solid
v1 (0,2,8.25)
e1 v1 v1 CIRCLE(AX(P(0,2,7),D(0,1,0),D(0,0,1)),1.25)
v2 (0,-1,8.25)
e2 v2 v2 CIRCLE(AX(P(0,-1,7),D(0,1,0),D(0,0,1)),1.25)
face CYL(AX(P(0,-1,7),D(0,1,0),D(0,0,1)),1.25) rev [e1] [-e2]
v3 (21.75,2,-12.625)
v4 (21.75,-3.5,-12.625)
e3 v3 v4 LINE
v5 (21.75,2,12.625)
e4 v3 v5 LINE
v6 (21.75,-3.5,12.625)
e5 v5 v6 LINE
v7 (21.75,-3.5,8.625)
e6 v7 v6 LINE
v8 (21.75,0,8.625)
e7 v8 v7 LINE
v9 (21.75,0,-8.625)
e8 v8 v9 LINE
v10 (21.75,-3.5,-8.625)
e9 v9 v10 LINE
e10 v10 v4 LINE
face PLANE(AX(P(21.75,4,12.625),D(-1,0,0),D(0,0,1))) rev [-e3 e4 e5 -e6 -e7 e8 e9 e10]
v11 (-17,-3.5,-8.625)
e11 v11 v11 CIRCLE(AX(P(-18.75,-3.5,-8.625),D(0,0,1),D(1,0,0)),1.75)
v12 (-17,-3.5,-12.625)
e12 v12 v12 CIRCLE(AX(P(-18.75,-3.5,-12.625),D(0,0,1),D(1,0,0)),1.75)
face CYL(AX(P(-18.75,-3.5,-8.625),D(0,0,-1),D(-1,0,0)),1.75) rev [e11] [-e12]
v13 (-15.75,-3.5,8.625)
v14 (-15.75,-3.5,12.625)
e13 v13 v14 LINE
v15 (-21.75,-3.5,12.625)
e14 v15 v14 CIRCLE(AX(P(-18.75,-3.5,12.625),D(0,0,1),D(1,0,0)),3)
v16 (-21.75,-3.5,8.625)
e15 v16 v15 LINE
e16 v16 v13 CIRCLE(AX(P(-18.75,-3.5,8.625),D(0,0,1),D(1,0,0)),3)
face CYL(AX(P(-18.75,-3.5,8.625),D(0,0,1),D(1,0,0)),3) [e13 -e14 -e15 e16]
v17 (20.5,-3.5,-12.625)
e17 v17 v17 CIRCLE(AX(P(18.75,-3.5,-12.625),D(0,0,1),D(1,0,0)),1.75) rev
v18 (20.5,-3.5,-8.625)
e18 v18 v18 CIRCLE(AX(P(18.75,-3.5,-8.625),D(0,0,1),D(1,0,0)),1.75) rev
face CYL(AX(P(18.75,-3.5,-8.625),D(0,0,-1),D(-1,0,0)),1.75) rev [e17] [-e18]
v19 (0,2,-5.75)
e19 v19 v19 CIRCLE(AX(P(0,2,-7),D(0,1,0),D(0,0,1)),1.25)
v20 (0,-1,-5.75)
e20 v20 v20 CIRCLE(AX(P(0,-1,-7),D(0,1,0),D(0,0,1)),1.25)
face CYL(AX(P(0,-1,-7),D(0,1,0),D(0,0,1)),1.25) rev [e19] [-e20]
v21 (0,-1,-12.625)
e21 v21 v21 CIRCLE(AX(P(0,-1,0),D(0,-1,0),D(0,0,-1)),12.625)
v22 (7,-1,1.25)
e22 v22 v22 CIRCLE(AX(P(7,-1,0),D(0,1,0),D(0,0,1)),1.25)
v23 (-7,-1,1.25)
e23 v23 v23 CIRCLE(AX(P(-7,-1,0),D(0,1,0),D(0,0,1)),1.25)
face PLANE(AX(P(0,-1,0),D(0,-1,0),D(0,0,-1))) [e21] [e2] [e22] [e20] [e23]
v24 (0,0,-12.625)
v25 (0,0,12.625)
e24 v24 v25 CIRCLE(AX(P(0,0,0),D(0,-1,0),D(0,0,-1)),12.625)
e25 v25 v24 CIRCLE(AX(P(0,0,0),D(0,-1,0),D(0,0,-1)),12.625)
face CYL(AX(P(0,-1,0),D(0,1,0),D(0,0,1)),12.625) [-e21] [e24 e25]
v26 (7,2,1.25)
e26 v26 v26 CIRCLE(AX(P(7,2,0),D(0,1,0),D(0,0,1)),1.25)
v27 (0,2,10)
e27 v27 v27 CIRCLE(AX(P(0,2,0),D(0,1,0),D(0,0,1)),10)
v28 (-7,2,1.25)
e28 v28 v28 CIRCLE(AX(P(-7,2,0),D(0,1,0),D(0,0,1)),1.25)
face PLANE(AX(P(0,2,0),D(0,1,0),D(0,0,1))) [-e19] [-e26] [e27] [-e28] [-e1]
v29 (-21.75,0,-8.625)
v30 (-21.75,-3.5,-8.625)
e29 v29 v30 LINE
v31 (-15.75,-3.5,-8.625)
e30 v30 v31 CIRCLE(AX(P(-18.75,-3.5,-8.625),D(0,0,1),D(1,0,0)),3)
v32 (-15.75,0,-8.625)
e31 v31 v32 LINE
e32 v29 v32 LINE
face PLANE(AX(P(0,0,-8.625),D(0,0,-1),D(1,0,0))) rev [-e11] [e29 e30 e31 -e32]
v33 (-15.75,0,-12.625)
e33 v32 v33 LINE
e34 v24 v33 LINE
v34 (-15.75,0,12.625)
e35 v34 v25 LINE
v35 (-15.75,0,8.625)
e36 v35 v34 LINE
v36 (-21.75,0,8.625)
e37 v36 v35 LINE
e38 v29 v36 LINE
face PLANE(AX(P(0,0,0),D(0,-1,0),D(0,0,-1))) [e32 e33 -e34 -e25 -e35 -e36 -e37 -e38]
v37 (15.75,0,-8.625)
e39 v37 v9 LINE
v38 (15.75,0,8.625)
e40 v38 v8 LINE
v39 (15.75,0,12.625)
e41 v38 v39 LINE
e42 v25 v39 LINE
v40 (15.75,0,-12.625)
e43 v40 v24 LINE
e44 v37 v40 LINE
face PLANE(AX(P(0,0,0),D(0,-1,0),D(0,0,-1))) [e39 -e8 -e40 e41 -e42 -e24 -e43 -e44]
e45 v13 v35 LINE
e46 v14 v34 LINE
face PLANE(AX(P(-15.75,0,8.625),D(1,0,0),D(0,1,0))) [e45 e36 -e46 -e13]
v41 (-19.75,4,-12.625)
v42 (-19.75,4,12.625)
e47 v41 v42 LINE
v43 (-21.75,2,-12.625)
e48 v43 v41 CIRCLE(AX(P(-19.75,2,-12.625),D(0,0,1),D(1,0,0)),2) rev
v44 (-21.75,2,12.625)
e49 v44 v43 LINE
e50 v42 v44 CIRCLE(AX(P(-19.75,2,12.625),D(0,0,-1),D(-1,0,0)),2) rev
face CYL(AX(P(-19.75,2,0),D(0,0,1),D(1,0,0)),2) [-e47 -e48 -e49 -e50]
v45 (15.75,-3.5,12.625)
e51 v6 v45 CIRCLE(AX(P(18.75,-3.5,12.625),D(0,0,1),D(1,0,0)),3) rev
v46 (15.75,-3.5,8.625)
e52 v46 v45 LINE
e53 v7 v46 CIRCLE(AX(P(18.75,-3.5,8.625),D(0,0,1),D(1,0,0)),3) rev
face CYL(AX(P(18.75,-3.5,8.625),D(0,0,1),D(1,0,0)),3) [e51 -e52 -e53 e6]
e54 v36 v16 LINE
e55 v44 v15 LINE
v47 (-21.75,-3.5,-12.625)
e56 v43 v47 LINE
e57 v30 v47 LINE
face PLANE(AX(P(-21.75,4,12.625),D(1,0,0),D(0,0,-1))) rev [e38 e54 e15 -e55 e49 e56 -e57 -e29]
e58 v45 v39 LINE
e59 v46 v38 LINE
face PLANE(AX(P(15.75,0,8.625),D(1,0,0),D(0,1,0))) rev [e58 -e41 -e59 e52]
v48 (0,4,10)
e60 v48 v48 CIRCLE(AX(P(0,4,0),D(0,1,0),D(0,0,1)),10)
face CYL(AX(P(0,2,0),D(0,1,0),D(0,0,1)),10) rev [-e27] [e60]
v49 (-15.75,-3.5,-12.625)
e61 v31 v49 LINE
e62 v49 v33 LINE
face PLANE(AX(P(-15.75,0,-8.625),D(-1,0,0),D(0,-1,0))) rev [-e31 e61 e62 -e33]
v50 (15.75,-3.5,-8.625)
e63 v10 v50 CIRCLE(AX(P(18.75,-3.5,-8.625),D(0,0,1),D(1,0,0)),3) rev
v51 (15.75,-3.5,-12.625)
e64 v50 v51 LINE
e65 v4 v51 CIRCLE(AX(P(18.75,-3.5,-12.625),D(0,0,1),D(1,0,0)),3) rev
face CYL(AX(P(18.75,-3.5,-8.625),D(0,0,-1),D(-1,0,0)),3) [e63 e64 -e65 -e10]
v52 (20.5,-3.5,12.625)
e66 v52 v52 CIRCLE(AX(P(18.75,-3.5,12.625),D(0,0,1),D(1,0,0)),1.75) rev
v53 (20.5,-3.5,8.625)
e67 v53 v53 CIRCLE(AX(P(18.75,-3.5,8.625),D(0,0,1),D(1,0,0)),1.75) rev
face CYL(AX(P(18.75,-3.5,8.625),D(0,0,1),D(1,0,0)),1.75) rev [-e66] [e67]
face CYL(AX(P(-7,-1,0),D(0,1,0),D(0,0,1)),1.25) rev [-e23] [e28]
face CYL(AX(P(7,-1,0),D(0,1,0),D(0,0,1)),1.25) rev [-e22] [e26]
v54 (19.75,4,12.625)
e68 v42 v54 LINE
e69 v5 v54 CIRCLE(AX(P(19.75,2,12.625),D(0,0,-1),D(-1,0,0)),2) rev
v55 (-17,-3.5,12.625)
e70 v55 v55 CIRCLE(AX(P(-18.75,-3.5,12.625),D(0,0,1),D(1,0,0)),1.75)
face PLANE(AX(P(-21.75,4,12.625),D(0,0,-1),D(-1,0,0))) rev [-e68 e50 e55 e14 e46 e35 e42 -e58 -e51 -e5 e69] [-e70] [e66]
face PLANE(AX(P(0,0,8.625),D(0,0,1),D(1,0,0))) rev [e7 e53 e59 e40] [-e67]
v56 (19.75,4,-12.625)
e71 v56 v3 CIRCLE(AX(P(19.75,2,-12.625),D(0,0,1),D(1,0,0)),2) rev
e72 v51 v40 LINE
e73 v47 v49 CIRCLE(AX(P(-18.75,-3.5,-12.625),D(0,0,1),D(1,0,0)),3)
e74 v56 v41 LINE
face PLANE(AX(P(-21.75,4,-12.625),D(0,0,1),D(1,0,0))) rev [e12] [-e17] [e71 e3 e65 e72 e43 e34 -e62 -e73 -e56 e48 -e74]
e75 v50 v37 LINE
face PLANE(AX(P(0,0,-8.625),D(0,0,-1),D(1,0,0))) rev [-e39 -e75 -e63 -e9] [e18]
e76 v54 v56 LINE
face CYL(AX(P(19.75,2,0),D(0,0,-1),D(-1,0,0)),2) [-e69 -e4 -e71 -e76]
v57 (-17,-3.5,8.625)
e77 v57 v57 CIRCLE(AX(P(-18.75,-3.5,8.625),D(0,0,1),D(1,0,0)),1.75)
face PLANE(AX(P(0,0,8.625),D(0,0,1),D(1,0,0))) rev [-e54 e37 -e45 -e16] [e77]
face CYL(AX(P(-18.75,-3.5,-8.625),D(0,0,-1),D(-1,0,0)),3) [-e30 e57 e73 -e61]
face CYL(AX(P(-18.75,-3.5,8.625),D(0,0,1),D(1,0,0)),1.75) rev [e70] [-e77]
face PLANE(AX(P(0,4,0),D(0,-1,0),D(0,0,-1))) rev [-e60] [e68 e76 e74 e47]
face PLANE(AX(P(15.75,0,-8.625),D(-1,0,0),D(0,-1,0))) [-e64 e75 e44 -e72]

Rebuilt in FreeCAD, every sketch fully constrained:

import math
import FreeCAD as App
import Part
import Sketcher

V = App.Vector
Q = App.Units.Quantity


def edges_at(feature, points):
    """Names of the edges that pass closest to the given points."""
    edges = feature.Shape.Edges
    near = lambda p: min(range(len(edges)), key=lambda i: edges[i].distToShape(Part.Vertex(*p))[0])
    return sorted({f"Edge{near(p) + 1}" for p in points})

doc = App.newDocument("Part")
params = doc.addObject("Spreadsheet::Sheet", "Params")
for row, (alias, value) in enumerate([
    ("sketch1_width", "43.5 mm"),
    ("sketch1_height", "25.25 mm"),
    ("pad1_length", "4 mm"),
    ("sketch2_diameter", "20 mm"),
    ("pocket1_length", "2 mm"),
    ("sketch3_diameter", "25.25 mm"),
    ("pad2_length", "1 mm"),
    ("sketch4_diameter", "2.5 mm"),
    ("sketch5_radius", "3 mm"),
    ("sketch5_diameter", "3.5 mm"),
    ("sketch5_height", "3.5 mm"),
    ("pad3_length", "4 mm"),
    ("fillet_radius", "2 mm"),
], start=1):
    params.set(f"A{row}", alias)
    params.set(f"B{row}", "=" + value)
    params.setAlias(f"B{row}", alias)

body = doc.addObject("PartDesign::Body", "Body")

sketch1 = body.newObject("Sketcher::SketchObject", "Sketch")
sketch1.AttachmentSupport = (doc.getObject("XZ_Plane"), [""])
sketch1.MapMode = "FlatFace"
sketch1.addGeometry(Part.LineSegment(V(-22, -13, 0), V(-22, 13, 0)), False)
sketch1.addGeometry(Part.LineSegment(V(-22, 13, 0), V(22, 13, 0)), False)
sketch1.addGeometry(Part.LineSegment(V(22, 13, 0), V(22, -13, 0)), False)
sketch1.addGeometry(Part.LineSegment(V(22, -13, 0), V(-22, -13, 0)), False)
sketch1.addConstraint(Sketcher.Constraint("Coincident", 0, 2, 1, 1))
sketch1.addConstraint(Sketcher.Constraint("Coincident", 1, 2, 2, 1))
sketch1.addConstraint(Sketcher.Constraint("Coincident", 2, 2, 3, 1))
sketch1.addConstraint(Sketcher.Constraint("Coincident", 3, 2, 0, 1))
sketch1.addConstraint(Sketcher.Constraint("Vertical", 0))
sketch1.addConstraint(Sketcher.Constraint("Horizontal", 1))
sketch1.addConstraint(Sketcher.Constraint("Vertical", 2))
sketch1.addConstraint(Sketcher.Constraint("Horizontal", 3))
sketch1.addConstraint(Sketcher.Constraint("Symmetric", 0, 2, 2, 2, -1, 1))
sketch1.addConstraint(Sketcher.Constraint("DistanceX", 1, 1, 1, 2, Q("43.5 mm")))
sketch1.addConstraint(Sketcher.Constraint("DistanceY", 0, 1, 0, 2, Q("25.25 mm")))
sketch1.setExpression("Constraints[9]", "Params.sketch1_width")
sketch1.setExpression("Constraints[10]", "Params.sketch1_height")
pad1 = body.newObject("PartDesign::Pad", "Pad")
pad1.Profile = sketch1
pad1.setExpression("Length", "Params.pad1_length")
pad1.Reversed = True

sketch2 = body.newObject("Sketcher::SketchObject", "Sketch001")
sketch2.AttachmentSupport = (doc.getObject("XZ_Plane"), [""])
sketch2.MapMode = "FlatFace"
sketch2.AttachmentOffset = App.Placement(V(0, 0, -4), App.Rotation())
sketch2.addGeometry(Part.Circle(V(0, 0, 0), V(0, 0, 1), 10), False)
sketch2.addConstraint(Sketcher.Constraint("Coincident", 0, 3, -1, 1))
sketch2.addConstraint(Sketcher.Constraint("Diameter", 0, Q("20 mm")))
sketch2.setExpression("Constraints[1]", "Params.sketch2_diameter")
pocket1 = body.newObject("PartDesign::Pocket", "Pocket")
pocket1.Profile = sketch2
pocket1.setExpression("Length", "Params.pocket1_length")
pocket1.Reversed = True

sketch3 = body.newObject("Sketcher::SketchObject", "Sketch002")
sketch3.AttachmentSupport = (doc.getObject("XZ_Plane"), [""])
sketch3.MapMode = "FlatFace"
sketch3.addGeometry(Part.Circle(V(0, 0, 0), V(0, 0, 1), 13), False)
sketch3.addConstraint(Sketcher.Constraint("Coincident", 0, 3, -1, 1))
sketch3.addConstraint(Sketcher.Constraint("Diameter", 0, Q("25.25 mm")))
sketch3.setExpression("Constraints[1]", "Params.sketch3_diameter")
pad2 = body.newObject("PartDesign::Pad", "Pad001")
pad2.Profile = sketch3
pad2.setExpression("Length", "Params.pad2_length")

sketch4 = body.newObject("Sketcher::SketchObject", "Sketch003")
sketch4.AttachmentSupport = (doc.getObject("XZ_Plane"), [""])
sketch4.MapMode = "FlatFace"
sketch4.AttachmentOffset = App.Placement(V(0, 0, -4), App.Rotation())
sketch4.addGeometry(Part.Circle(V(0, -7, 0), V(0, 0, 1), 1.2), False)
sketch4.addGeometry(Part.Circle(V(7, 0, 0), V(0, 0, 1), 1.2), False)
sketch4.addGeometry(Part.Circle(V(0, 7, 0), V(0, 0, 1), 1.2), False)
sketch4.addGeometry(Part.Circle(V(-7, 0, 0), V(0, 0, 1), 1.2), False)
sketch4.addConstraint(Sketcher.Constraint("Equal", 0, 1))
sketch4.addConstraint(Sketcher.Constraint("Equal", 1, 2))
sketch4.addConstraint(Sketcher.Constraint("Equal", 2, 3))
sketch4.addConstraint(Sketcher.Constraint("Symmetric", 0, 3, 2, 3, -1, 1))
sketch4.addConstraint(Sketcher.Constraint("Symmetric", 1, 3, 3, 3, -1, 1))
sketch4.addConstraint(Sketcher.Constraint("PointOnObject", 0, 3, -2))
sketch4.addConstraint(Sketcher.Constraint("PointOnObject", 1, 3, -1))
sketch4.addConstraint(Sketcher.Constraint("Diameter", 0, Q("2.5 mm")))
sketch4.addConstraint(Sketcher.Constraint("DistanceY", 0, 3, -1, 1, Q("7 mm")))
sketch4.addConstraint(Sketcher.Constraint("DistanceX", -1, 1, 1, 3, Q("7 mm")))
sketch4.setExpression("Constraints[7]", "Params.sketch4_diameter")
pocket2 = body.newObject("PartDesign::Pocket", "Pocket001")
pocket2.Profile = sketch4
pocket2.Type = "ThroughAll"
pocket2.Reversed = True

sketch5 = body.newObject("Sketcher::SketchObject", "Sketch004")
sketch5.AttachmentSupport = (doc.getObject("XY_Plane"), [""])
sketch5.MapMode = "FlatFace"
sketch5.AttachmentOffset = App.Placement(V(0, 0, 12.625), App.Rotation())
sketch5.addGeometry(Part.LineSegment(V(-15.8, 0, 0), V(-21.8, 0, 0)), False)
sketch5.addGeometry(Part.LineSegment(V(-21.8, 0, 0), V(-21.8, -3.5, 0)), False)
sketch5.addGeometry(Part.ArcOfCircle(Part.Circle(V(-18.8, -3.5, 0), V(0, 0, 1), 3), math.radians(180), math.radians(360)), False)
sketch5.addGeometry(Part.LineSegment(V(-15.8, -3.5, 0), V(-15.8, 0, 0)), False)
sketch5.addGeometry(Part.Circle(V(-18.8, -3.5, 0), V(0, 0, 1), 1.8), False)
sketch5.addGeometry(Part.LineSegment(V(21.8, -3.5, 0), V(21.8, 0, 0)), False)
sketch5.addGeometry(Part.LineSegment(V(21.8, 0, 0), V(15.8, 0, 0)), False)
sketch5.addGeometry(Part.LineSegment(V(15.8, 0, 0), V(15.8, -3.5, 0)), False)
sketch5.addGeometry(Part.ArcOfCircle(Part.Circle(V(18.8, -3.5, 0), V(0, 0, 1), 3), math.radians(180), math.radians(360)), False)
sketch5.addGeometry(Part.Circle(V(18.8, -3.5, 0), V(0, 0, 1), 1.8), False)
sketch5.addConstraint(Sketcher.Constraint("Coincident", 0, 2, 1, 1))
sketch5.addConstraint(Sketcher.Constraint("Tangent", 1, 2, 2, 1))
sketch5.addConstraint(Sketcher.Constraint("Tangent", 2, 2, 3, 1))
sketch5.addConstraint(Sketcher.Constraint("Coincident", 3, 2, 0, 1))
sketch5.addConstraint(Sketcher.Constraint("Coincident", 5, 2, 6, 1))
sketch5.addConstraint(Sketcher.Constraint("Coincident", 6, 2, 7, 1))
sketch5.addConstraint(Sketcher.Constraint("Tangent", 7, 2, 8, 1))
sketch5.addConstraint(Sketcher.Constraint("Tangent", 8, 2, 5, 1))
sketch5.addConstraint(Sketcher.Constraint("Horizontal", 0))
sketch5.addConstraint(Sketcher.Constraint("Vertical", 1))
sketch5.addConstraint(Sketcher.Constraint("Vertical", 3))
sketch5.addConstraint(Sketcher.Constraint("Vertical", 5))
sketch5.addConstraint(Sketcher.Constraint("Horizontal", 6))
sketch5.addConstraint(Sketcher.Constraint("Vertical", 7))
sketch5.addConstraint(Sketcher.Constraint("Coincident", 4, 3, 2, 3))
sketch5.addConstraint(Sketcher.Constraint("Coincident", 9, 3, 8, 3))
sketch5.addConstraint(Sketcher.Constraint("Equal", 2, 8))
sketch5.addConstraint(Sketcher.Constraint("Equal", 4, 9))
sketch5.addConstraint(Sketcher.Constraint("Symmetric", 0, 2, 5, 2, -1, 1))
sketch5.addConstraint(Sketcher.Constraint("PointOnObject", 0, 2, -1))
sketch5.addConstraint(Sketcher.Constraint("Horizontal", 4, 3, 8, 3))
sketch5.addConstraint(Sketcher.Constraint("Radius", 2, Q("3 mm")))
sketch5.addConstraint(Sketcher.Constraint("Diameter", 4, Q("3.5 mm")))
sketch5.addConstraint(Sketcher.Constraint("DistanceY", 1, 2, 1, 1, Q("3.5 mm")))
sketch5.addConstraint(Sketcher.Constraint("DistanceX", 2, 3, 8, 3, Q("37.5 mm")))
sketch5.setExpression("Constraints[21]", "Params.sketch5_radius")
sketch5.setExpression("Constraints[22]", "Params.sketch5_diameter")
sketch5.setExpression("Constraints[23]", "Params.sketch5_height")
pad3 = body.newObject("PartDesign::Pad", "Pad002")
pad3.Profile = sketch5
pad3.setExpression("Length", "Params.pad3_length")
pad3.Reversed = True
doc.recompute()

mirrored = body.newObject("PartDesign::Mirrored", "Mirrored")
mirrored.Originals = [pad3]
mirrored.MirrorPlane = (doc.getObject("XY_Plane"), [""])
body.Tip = mirrored
doc.recompute()

fillet = body.newObject("PartDesign::Fillet", "Fillet")
fillet.Base = (mirrored, edges_at(mirrored, [(-21.75, 4, 0), (21.75, 4, 0)]))
fillet.setExpression("Radius", "Params.fillet_radius")

doc.recompute()
